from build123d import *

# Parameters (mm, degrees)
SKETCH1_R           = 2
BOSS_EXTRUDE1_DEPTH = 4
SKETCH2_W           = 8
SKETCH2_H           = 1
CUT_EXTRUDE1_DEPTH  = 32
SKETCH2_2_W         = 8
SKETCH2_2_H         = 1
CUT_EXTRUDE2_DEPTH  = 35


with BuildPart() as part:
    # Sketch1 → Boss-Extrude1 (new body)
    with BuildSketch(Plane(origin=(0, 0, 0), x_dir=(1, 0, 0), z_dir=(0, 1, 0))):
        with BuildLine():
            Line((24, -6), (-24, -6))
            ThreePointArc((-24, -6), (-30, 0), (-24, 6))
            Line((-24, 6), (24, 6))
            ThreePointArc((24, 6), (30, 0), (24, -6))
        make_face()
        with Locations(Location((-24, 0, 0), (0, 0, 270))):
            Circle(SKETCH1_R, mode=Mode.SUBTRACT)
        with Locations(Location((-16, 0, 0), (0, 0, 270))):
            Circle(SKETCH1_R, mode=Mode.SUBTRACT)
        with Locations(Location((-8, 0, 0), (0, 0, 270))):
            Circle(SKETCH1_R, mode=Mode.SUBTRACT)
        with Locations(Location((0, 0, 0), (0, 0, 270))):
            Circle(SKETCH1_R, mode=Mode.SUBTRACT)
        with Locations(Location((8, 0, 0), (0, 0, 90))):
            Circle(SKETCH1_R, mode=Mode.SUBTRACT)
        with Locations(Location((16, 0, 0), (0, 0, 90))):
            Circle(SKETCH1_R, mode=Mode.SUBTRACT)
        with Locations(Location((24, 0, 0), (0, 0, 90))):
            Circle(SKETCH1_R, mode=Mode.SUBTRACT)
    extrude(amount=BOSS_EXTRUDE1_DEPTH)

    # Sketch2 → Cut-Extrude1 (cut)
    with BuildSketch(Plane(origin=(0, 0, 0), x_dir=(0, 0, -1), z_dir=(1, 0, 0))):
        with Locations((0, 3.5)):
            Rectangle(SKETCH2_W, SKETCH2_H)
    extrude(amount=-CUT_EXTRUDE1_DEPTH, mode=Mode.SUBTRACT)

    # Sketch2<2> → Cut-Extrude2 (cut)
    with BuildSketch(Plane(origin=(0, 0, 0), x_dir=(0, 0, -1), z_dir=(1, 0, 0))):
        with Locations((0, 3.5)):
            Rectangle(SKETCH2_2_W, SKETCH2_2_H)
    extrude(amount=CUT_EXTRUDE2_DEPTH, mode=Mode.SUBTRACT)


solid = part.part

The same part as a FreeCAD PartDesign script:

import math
import FreeCAD as App
import Part
import Sketcher

V = App.Vector


def add_polygon(sketch, points):
    """Adds a closed chain of lines whose ends are joined by coincident constraints."""
    first, n = sketch.GeometryCount, len(points)
    for a, b in zip(points, points[1:] + points[:1]):
        sketch.addGeometry(Part.LineSegment(App.Vector(*a, 0), App.Vector(*b, 0)), False)
    for i in range(n):
        sketch.addConstraint(Sketcher.Constraint("Coincident", first + i, 2, first + (i + 1) % n, 1))

doc = App.newDocument("Part")
body = doc.addObject("PartDesign::Body", "Body")

# Sketch on XZ plane
sketch1 = body.newObject("Sketcher::SketchObject", "Sketch")
sketch1.AttachmentSupport = (doc.getObject("XZ_Plane"), [""])
sketch1.MapMode = "FlatFace"
sketch1.addGeometry(Part.LineSegment(V(-24, 6, 0), V(24, 6, 0)), False)
sketch1.addGeometry(Part.ArcOfCircle(Part.Circle(V(24, 0, 0), V(0, 0, 1), 6), math.radians(-90), math.radians(90)), False)
sketch1.addGeometry(Part.LineSegment(V(24, -6, 0), V(-24, -6, 0)), False)
sketch1.addGeometry(Part.ArcOfCircle(Part.Circle(V(-24, 0, 0), V(0, 0, 1), 6), math.radians(90), math.radians(270)), False)
sketch1.addGeometry(Part.Circle(V(24, 0, 0), V(0, 0, 1), 2), False)
sketch1.addGeometry(Part.Circle(V(16, 0, 0), V(0, 0, 1), 2), False)
sketch1.addGeometry(Part.Circle(V(8, 0, 0), V(0, 0, 1), 2), False)
sketch1.addGeometry(Part.Circle(V(0, 0, 0), V(0, 0, 1), 2), False)
sketch1.addGeometry(Part.Circle(V(-8, 0, 0), V(0, 0, 1), 2), False)
sketch1.addGeometry(Part.Circle(V(-16, 0, 0), V(0, 0, 1), 2), False)
sketch1.addGeometry(Part.Circle(V(-24, 0, 0), V(0, 0, 1), 2), False)
sketch1.addConstraint(Sketcher.Constraint("Tangent", 0, 2, 1, 2))
sketch1.addConstraint(Sketcher.Constraint("Tangent", 1, 1, 2, 1))
sketch1.addConstraint(Sketcher.Constraint("Tangent", 2, 2, 3, 2))
sketch1.addConstraint(Sketcher.Constraint("Tangent", 3, 1, 0, 1))
sketch1.addConstraint(Sketcher.Constraint("Horizontal", 0))
sketch1.addConstraint(Sketcher.Constraint("Horizontal", 2))
sketch1.addConstraint(Sketcher.Constraint("Coincident", 7, 3, -1, 1))
sketch1.addConstraint(Sketcher.Constraint("Coincident", 4, 3, 1, 3))
sketch1.addConstraint(Sketcher.Constraint("Coincident", 10, 3, 3, 3))
sketch1.addConstraint(Sketcher.Constraint("Equal", 4, 5))
sketch1.addConstraint(Sketcher.Constraint("Equal", 5, 6))
sketch1.addConstraint(Sketcher.Constraint("Equal", 6, 7))
sketch1.addConstraint(Sketcher.Constraint("Equal", 7, 8))
sketch1.addConstraint(Sketcher.Constraint("Equal", 8, 9))
sketch1.addConstraint(Sketcher.Constraint("Equal", 9, 10))
sketch1.addConstraint(Sketcher.Constraint("Symmetric", 1, 3, 3, 3, -1, 1))
sketch1.addConstraint(Sketcher.Constraint("Symmetric", 6, 3, 8, 3, -1, 1))
sketch1.addConstraint(Sketcher.Constraint("Symmetric", 5, 3, 9, 3, -1, 1))
sketch1.addConstraint(Sketcher.Constraint("PointOnObject", 5, 3, -1))
sketch1.addConstraint(Sketcher.Constraint("PointOnObject", 6, 3, -1))
sketch1.addConstraint(Sketcher.Constraint("Diameter", 4, 4.0))
sketch1.addConstraint(Sketcher.Constraint("Radius", 1, 6.0))
sketch1.addConstraint(Sketcher.Constraint("DistanceX", 0, 1, 0, 2, 48.0))
sketch1.addConstraint(Sketcher.Constraint("DistanceX", -1, 1, 5, 3, 16.0))
sketch1.addConstraint(Sketcher.Constraint("DistanceX", -1, 1, 6, 3, 8.0))
pad1 = body.newObject("PartDesign::Pad", "Pad")
pad1.Profile = sketch1
pad1.Length = 4
pad1.Reversed = True

# Sketch on YZ plane
sketch2 = body.newObject("Sketcher::SketchObject", "Sketch001")
sketch2.AttachmentSupport = (doc.getObject("YZ_Plane"), [""])
sketch2.MapMode = "FlatFace"
add_polygon(sketch2, [(4, 4), (3, 4), (3, -4), (4, -4)])  # lines 0-3
sketch2.addConstraint(Sketcher.Constraint("Horizontal", 0))
sketch2.addConstraint(Sketcher.Constraint("Vertical", 1))
sketch2.addConstraint(Sketcher.Constraint("Horizontal", 2))
sketch2.addConstraint(Sketcher.Constraint("Vertical", 3))
sketch2.addConstraint(Sketcher.Constraint("DistanceX", 0, 2, 0, 1, 1.0))
sketch2.addConstraint(Sketcher.Constraint("DistanceY", 1, 2, 1, 1, 8.0))
sketch2.addConstraint(Sketcher.Constraint("DistanceX", -1, 1, 0, 2, 3.0))
sketch2.addConstraint(Sketcher.Constraint("DistanceY", -1, 1, 0, 2, 4.0))
pocket1 = body.newObject("PartDesign::Pocket", "Pocket")
pocket1.Profile = sketch2
pocket1.Length = 32

# Sketch on YZ plane
sketch3 = body.newObject("Sketcher::SketchObject", "Sketch002")
sketch3.AttachmentSupport = (doc.getObject("YZ_Plane"), [""])
sketch3.MapMode = "FlatFace"
add_polygon(sketch3, [(4, 4), (3, 4), (3, -4), (4, -4)])  # lines 0-3
sketch3.addConstraint(Sketcher.Constraint("Horizontal", 0))
sketch3.addConstraint(Sketcher.Constraint("Vertical", 1))
sketch3.addConstraint(Sketcher.Constraint("Horizontal", 2))
sketch3.addConstraint(Sketcher.Constraint("Vertical", 3))
sketch3.addConstraint(Sketcher.Constraint("DistanceX", 0, 2, 0, 1, 1.0))
sketch3.addConstraint(Sketcher.Constraint("DistanceY", 1, 2, 1, 1, 8.0))
sketch3.addConstraint(Sketcher.Constraint("DistanceX", -1, 1, 0, 2, 3.0))
sketch3.addConstraint(Sketcher.Constraint("DistanceY", -1, 1, 0, 2, 4.0))
pocket2 = body.newObject("PartDesign::Pocket", "Pocket001")
pocket2.Profile = sketch3
pocket2.Length = 35
pocket2.Reversed = True

doc.recompute()
